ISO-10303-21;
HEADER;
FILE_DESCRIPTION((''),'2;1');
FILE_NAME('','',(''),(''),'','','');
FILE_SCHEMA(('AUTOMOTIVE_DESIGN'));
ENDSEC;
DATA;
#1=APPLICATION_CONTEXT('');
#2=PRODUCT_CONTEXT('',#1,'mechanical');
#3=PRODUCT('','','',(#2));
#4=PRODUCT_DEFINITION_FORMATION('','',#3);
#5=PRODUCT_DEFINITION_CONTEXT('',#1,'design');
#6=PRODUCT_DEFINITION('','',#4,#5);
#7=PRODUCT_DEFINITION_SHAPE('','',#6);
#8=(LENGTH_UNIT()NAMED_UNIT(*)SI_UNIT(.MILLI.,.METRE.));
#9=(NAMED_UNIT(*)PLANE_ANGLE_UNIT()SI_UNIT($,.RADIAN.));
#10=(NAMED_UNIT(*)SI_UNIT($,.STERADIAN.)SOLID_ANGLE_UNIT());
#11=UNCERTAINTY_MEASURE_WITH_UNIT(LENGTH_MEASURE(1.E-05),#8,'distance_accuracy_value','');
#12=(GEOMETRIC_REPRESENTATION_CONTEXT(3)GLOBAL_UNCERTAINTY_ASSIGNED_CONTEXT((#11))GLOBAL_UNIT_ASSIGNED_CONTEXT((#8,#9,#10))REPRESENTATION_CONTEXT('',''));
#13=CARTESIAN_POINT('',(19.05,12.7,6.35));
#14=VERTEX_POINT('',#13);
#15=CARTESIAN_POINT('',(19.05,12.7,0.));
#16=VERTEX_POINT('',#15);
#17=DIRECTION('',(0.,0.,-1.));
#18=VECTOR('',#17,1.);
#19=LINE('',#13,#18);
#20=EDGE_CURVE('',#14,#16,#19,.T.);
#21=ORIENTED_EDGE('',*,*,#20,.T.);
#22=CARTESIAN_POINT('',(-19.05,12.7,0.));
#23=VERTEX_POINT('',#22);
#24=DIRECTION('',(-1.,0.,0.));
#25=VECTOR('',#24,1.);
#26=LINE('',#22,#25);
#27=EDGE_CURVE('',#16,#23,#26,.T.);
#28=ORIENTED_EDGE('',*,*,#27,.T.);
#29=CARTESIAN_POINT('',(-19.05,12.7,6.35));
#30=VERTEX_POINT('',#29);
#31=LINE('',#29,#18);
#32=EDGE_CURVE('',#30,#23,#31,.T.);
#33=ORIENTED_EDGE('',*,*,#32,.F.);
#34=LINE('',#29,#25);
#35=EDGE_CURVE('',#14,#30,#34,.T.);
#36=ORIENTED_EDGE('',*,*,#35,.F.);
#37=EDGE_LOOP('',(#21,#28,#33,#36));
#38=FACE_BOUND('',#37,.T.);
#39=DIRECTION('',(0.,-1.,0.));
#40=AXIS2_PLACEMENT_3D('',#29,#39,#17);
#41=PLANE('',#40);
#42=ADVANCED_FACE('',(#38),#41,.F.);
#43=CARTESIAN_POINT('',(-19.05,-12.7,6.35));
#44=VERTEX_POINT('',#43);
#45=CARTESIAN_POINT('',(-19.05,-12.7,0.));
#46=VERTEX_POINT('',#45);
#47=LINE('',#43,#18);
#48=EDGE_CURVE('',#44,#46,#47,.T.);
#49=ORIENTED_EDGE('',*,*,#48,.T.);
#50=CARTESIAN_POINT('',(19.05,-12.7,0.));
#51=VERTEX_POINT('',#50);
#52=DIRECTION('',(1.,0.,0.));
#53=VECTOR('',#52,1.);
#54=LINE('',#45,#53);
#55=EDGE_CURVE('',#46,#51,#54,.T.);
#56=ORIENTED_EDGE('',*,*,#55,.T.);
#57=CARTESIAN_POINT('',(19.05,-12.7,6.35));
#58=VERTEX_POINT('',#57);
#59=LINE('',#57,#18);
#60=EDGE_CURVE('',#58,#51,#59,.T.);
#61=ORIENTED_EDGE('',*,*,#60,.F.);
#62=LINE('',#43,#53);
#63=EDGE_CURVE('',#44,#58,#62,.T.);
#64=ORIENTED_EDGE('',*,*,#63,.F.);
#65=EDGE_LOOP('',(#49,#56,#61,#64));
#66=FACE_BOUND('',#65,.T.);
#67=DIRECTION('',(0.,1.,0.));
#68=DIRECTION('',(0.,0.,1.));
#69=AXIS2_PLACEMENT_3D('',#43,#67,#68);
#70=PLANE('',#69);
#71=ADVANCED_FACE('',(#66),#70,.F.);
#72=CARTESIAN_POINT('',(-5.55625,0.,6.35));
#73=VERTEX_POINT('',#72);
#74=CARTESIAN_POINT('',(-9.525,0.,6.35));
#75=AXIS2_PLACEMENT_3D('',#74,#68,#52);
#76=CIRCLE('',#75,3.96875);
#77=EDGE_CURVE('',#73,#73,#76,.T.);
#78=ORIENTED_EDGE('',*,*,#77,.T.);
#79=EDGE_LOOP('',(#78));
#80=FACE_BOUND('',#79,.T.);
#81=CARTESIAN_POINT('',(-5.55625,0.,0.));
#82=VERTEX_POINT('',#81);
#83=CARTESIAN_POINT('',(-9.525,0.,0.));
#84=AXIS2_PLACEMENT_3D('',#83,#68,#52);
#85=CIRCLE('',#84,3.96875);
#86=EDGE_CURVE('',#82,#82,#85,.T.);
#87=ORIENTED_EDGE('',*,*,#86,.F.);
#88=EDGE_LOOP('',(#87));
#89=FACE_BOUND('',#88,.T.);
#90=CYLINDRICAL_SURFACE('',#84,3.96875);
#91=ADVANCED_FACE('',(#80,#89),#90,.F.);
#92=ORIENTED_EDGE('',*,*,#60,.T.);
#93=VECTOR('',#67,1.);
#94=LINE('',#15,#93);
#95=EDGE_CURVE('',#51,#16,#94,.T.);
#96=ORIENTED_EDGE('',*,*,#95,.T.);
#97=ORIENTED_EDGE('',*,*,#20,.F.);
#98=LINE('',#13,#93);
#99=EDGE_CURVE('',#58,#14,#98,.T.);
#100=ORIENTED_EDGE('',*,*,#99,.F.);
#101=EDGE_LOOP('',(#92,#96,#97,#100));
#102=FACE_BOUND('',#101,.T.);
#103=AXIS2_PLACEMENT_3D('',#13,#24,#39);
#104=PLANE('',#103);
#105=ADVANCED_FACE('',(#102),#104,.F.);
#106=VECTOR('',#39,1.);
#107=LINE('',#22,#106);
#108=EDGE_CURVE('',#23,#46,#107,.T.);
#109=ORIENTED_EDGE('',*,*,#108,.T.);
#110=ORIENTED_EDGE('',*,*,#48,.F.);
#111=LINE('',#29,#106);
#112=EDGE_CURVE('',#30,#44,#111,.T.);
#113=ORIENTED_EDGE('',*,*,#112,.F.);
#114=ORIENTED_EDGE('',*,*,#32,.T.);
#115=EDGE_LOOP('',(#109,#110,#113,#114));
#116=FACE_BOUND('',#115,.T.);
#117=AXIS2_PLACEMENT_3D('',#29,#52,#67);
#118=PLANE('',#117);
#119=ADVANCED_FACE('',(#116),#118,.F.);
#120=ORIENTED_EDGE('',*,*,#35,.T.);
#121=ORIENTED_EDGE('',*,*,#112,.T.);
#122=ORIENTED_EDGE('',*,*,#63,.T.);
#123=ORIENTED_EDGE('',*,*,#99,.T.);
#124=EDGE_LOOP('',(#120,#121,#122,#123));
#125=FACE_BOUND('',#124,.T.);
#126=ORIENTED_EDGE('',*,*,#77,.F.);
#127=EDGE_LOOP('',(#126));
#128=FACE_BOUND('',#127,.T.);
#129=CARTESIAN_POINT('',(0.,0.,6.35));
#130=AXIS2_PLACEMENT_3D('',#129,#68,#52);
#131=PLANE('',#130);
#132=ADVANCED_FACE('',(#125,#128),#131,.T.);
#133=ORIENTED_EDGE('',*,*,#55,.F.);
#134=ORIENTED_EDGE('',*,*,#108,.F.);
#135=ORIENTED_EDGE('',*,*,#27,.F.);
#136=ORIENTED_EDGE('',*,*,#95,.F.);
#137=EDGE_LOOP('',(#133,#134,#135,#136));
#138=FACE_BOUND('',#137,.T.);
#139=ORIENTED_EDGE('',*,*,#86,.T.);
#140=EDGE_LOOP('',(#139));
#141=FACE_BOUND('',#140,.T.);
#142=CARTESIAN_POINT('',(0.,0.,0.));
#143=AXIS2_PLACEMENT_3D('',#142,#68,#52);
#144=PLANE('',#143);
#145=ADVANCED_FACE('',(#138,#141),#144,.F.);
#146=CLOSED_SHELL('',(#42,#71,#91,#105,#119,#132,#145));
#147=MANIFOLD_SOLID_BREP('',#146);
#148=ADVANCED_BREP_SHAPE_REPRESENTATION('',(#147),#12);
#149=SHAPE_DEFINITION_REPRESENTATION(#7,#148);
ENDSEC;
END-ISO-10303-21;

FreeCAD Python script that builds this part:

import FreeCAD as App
import Part
import Sketcher

V = App.Vector
Q = App.Units.Quantity


def add_polygon(sketch, points):
    """Adds a closed chain of lines whose ends are joined by coincident constraints."""
    first, n = sketch.GeometryCount, len(points)
    for a, b in zip(points, points[1:] + points[:1]):
        sketch.addGeometry(Part.LineSegment(App.Vector(*a, 0), App.Vector(*b, 0)), False)
    for i in range(n):
        sketch.addConstraint(Sketcher.Constraint("Coincident", first + i, 2, first + (i + 1) % n, 1))

doc = App.newDocument("Part")
body = doc.addObject("PartDesign::Body", "Body")

# Sketch on XY plane
sketch1 = doc.addObject("Sketcher::SketchObject", "Sketch")
body.addObject(sketch1)
sketch1.AttachmentSupport = (doc.XY_Plane, [""])
sketch1.MapMode = "FlatFace"
add_polygon(sketch1, [(-19.05, 12.7), (-19.05, -12.7), (19.05, -12.7), (19.05, 12.7)])  # lines 0-3
sketch1.addConstraint(Sketcher.Constraint("Vertical", 0))
sketch1.addConstraint(Sketcher.Constraint("Horizontal", 1))
sketch1.addConstraint(Sketcher.Constraint("Vertical", 2))
sketch1.addConstraint(Sketcher.Constraint("Horizontal", 3))
sketch1.addConstraint(Sketcher.Constraint("Symmetric", 0, 2, 2, 2, -1, 1))
sketch1.addConstraint(Sketcher.Constraint("DistanceY", 0, 2, 0, 1, Q("1 in")))
sketch1.addConstraint(Sketcher.Constraint("DistanceX", 1, 1, 1, 2, Q("1.5 in")))
pad1 = doc.addObject("PartDesign::Pad", "Pad")
body.addObject(pad1)
pad1.Profile = sketch1
pad1.Length = Q("0.25 in")

# Sketch on XY plane
sketch2 = doc.addObject("Sketcher::SketchObject", "Sketch001")
body.addObject(sketch2)
sketch2.AttachmentSupport = (doc.XY_Plane, [""])
sketch2.MapMode = "FlatFace"
sketch2.AttachmentOffset = App.Placement(V(0, 0, 0.25 * 25.4), App.Rotation())
sketch2.addGeometry(Part.Circle(V(-9.525, 0, 0), V(0, 0, 1), 3.96875), False)
sketch2.addConstraint(Sketcher.Constraint("PointOnObject", 0, 3, -1))
sketch2.addConstraint(Sketcher.Constraint("Diameter", 0, Q("0.3125 in")))
sketch2.addConstraint(Sketcher.Constraint("DistanceX", 0, 3, -1, 1, Q("0.375 in")))
pocket1 = doc.addObject("PartDesign::Pocket", "Pocket")
body.addObject(pocket1)
pocket1.Profile = sketch2
pocket1.Type = "ThroughAll"

doc.recompute()
